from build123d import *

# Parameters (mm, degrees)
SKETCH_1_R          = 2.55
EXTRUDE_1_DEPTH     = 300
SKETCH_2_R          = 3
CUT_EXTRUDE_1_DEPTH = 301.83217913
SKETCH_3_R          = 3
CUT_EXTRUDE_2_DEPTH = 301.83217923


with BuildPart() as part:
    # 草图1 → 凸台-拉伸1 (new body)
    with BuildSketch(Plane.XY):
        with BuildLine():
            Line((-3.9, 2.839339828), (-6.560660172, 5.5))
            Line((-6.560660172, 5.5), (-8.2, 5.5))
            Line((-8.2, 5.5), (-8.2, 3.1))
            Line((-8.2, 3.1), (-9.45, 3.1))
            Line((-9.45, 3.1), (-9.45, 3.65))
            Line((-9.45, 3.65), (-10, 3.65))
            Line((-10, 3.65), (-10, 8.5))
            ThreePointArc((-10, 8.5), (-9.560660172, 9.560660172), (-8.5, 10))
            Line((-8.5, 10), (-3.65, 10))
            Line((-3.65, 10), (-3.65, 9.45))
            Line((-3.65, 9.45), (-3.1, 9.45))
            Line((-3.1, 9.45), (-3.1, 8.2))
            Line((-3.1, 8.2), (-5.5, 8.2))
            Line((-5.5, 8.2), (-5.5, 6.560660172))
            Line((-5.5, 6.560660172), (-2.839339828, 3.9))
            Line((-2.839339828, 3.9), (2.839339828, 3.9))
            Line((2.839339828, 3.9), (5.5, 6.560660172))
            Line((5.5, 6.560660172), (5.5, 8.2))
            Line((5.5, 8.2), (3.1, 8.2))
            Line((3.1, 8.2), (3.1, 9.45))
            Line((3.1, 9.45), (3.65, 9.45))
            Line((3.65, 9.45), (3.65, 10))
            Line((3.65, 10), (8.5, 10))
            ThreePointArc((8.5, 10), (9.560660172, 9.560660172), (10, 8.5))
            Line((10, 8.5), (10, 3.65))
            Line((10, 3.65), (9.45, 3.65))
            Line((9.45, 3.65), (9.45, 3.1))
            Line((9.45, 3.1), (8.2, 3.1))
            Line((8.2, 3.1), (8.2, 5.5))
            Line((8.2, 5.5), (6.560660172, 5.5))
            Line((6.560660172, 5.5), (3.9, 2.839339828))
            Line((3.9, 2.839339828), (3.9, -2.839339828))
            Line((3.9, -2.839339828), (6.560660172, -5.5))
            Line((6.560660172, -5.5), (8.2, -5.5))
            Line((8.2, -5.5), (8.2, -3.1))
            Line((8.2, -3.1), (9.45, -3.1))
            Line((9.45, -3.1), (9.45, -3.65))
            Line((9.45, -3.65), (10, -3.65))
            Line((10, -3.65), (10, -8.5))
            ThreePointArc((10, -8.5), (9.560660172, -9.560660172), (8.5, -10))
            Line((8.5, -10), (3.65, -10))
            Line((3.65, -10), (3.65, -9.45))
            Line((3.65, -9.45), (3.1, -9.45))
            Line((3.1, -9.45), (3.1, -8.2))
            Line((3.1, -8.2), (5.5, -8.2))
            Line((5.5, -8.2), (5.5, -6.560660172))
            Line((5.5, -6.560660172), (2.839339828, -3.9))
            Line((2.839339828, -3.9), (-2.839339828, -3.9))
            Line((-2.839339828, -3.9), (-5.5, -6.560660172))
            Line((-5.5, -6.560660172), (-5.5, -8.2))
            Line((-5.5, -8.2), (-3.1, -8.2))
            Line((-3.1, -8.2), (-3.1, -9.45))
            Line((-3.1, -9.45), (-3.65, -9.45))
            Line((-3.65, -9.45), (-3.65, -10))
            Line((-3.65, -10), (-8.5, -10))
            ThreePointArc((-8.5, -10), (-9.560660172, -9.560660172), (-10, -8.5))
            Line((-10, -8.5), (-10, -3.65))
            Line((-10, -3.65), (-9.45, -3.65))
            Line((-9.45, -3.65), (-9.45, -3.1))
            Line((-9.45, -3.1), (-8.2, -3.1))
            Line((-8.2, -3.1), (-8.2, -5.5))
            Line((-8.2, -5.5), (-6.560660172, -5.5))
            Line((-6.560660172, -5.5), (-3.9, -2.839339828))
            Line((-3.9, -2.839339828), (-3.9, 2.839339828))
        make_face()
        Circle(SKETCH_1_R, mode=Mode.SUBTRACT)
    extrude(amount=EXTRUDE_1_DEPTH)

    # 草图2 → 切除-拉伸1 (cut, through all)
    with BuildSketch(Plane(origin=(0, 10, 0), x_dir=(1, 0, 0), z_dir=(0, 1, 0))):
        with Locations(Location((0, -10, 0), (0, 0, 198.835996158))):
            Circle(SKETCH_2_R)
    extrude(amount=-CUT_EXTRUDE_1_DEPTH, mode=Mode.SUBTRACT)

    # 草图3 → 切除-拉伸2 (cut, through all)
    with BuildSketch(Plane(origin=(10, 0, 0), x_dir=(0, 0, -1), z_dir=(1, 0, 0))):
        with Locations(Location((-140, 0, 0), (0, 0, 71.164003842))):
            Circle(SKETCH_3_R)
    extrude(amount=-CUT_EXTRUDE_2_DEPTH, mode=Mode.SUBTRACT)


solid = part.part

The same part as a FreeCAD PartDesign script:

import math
import FreeCAD as App
import Part
import Sketcher
from FreeCAD import Vector

doc = App.newDocument("Part")
body = doc.addObject("PartDesign::Body", "Body")

sketch1 = body.newObject("Sketcher::SketchObject", "Sketch")
sketch1.AttachmentSupport = (doc.getObject("XY_Plane"), [""])
sketch1.MapMode = "FlatFace"
sketch1.addGeometry([
    Part.LineSegment(Vector(-6.6, 5.5, 0), Vector(-3.9, 2.8, 0)),
    Part.LineSegment(Vector(-3.9, 2.8, 0), Vector(-3.9, -2.8, 0)),
    Part.LineSegment(Vector(-3.9, -2.8, 0), Vector(-6.6, -5.5, 0)),
    Part.LineSegment(Vector(-6.6, -5.5, 0), Vector(-8.2, -5.5, 0)),
    Part.LineSegment(Vector(-8.2, -5.5, 0), Vector(-8.2, -3.1, 0)),
    Part.LineSegment(Vector(-8.2, -3.1, 0), Vector(-9.4, -3.1, 0)),
    Part.LineSegment(Vector(-9.4, -3.1, 0), Vector(-9.4, -3.6, 0)),
    Part.LineSegment(Vector(-9.4, -3.6, 0), Vector(-10, -3.6, 0)),
    Part.LineSegment(Vector(-10, -3.6, 0), Vector(-10, -8.5, 0)),
    Part.ArcOfCircle(Part.Circle(Vector(-8.5, -8.5, 0), Vector(0, 0, 1), 1.5), math.radians(180), math.radians(270)),
    Part.LineSegment(Vector(-8.5, -10, 0), Vector(-3.6, -10, 0)),
    Part.LineSegment(Vector(-3.6, -10, 0), Vector(-3.6, -9.4, 0)),
    Part.LineSegment(Vector(-3.6, -9.4, 0), Vector(-3.1, -9.4, 0)),
    Part.LineSegment(Vector(-3.1, -9.4, 0), Vector(-3.1, -8.2, 0)),
    Part.LineSegment(Vector(-3.1, -8.2, 0), Vector(-5.5, -8.2, 0)),
    Part.LineSegment(Vector(-5.5, -8.2, 0), Vector(-5.5, -6.6, 0)),
    Part.LineSegment(Vector(-5.5, -6.6, 0), Vector(-2.8, -3.9, 0)),
    Part.LineSegment(Vector(-2.8, -3.9, 0), Vector(2.8, -3.9, 0)),
    Part.LineSegment(Vector(2.8, -3.9, 0), Vector(5.5, -6.6, 0)),
    Part.LineSegment(Vector(5.5, -6.6, 0), Vector(5.5, -8.2, 0)),
    Part.LineSegment(Vector(5.5, -8.2, 0), Vector(3.1, -8.2, 0)),
    Part.LineSegment(Vector(3.1, -8.2, 0), Vector(3.1, -9.4, 0)),
    Part.LineSegment(Vector(3.1, -9.4, 0), Vector(3.6, -9.4, 0)),
    Part.LineSegment(Vector(3.6, -9.4, 0), Vector(3.6, -10, 0)),
    Part.LineSegment(Vector(3.6, -10, 0), Vector(8.5, -10, 0)),
    Part.ArcOfCircle(Part.Circle(Vector(8.5, -8.5, 0), Vector(0, 0, 1), 1.5), math.radians(-90), math.radians(0)),
    Part.LineSegment(Vector(10, -8.5, 0), Vector(10, -3.6, 0)),
    Part.LineSegment(Vector(10, -3.6, 0), Vector(9.4, -3.6, 0)),
    Part.LineSegment(Vector(9.4, -3.6, 0), Vector(9.4, -3.1, 0)),
    Part.LineSegment(Vector(9.4, -3.1, 0), Vector(8.2, -3.1, 0)),
    Part.LineSegment(Vector(8.2, -3.1, 0), Vector(8.2, -5.5, 0)),
    Part.LineSegment(Vector(8.2, -5.5, 0), Vector(6.6, -5.5, 0)),
    Part.LineSegment(Vector(6.6, -5.5, 0), Vector(3.9, -2.8, 0)),
    Part.LineSegment(Vector(3.9, -2.8, 0), Vector(3.9, 2.8, 0)),
    Part.LineSegment(Vector(3.9, 2.8, 0), Vector(6.6, 5.5, 0)),
    Part.LineSegment(Vector(6.6, 5.5, 0), Vector(8.2, 5.5, 0)),
    Part.LineSegment(Vector(8.2, 5.5, 0), Vector(8.2, 3.1, 0)),
    Part.LineSegment(Vector(8.2, 3.1, 0), Vector(9.4, 3.1, 0)),
    Part.LineSegment(Vector(9.4, 3.1, 0), Vector(9.4, 3.6, 0)),
    Part.LineSegment(Vector(9.4, 3.6, 0), Vector(10, 3.6, 0)),
    Part.LineSegment(Vector(10, 3.6, 0), Vector(10, 8.5, 0)),
    Part.ArcOfCircle(Part.Circle(Vector(8.5, 8.5, 0), Vector(0, 0, 1), 1.5), math.radians(0), math.radians(90)),
    Part.LineSegment(Vector(8.5, 10, 0), Vector(3.6, 10, 0)),
    Part.LineSegment(Vector(3.6, 10, 0), Vector(3.6, 9.4, 0)),
    Part.LineSegment(Vector(3.6, 9.4, 0), Vector(3.1, 9.4, 0)),
    Part.LineSegment(Vector(3.1, 9.4, 0), Vector(3.1, 8.2, 0)),
    Part.LineSegment(Vector(3.1, 8.2, 0), Vector(5.5, 8.2, 0)),
    Part.LineSegment(Vector(5.5, 8.2, 0), Vector(5.5, 6.6, 0)),
    Part.LineSegment(Vector(5.5, 6.6, 0), Vector(2.8, 3.9, 0)),
    Part.LineSegment(Vector(2.8, 3.9, 0), Vector(-2.8, 3.9, 0)),
    Part.LineSegment(Vector(-2.8, 3.9, 0), Vector(-5.5, 6.6, 0)),
    Part.LineSegment(Vector(-5.5, 6.6, 0), Vector(-5.5, 8.2, 0)),
    Part.LineSegment(Vector(-5.5, 8.2, 0), Vector(-3.1, 8.2, 0)),
    Part.LineSegment(Vector(-3.1, 8.2, 0), Vector(-3.1, 9.4, 0)),
    Part.LineSegment(Vector(-3.1, 9.4, 0), Vector(-3.6, 9.4, 0)),
    Part.LineSegment(Vector(-3.6, 9.4, 0), Vector(-3.6, 10, 0)),
    Part.LineSegment(Vector(-3.6, 10, 0), Vector(-8.5, 10, 0)),
    Part.ArcOfCircle(Part.Circle(Vector(-8.5, 8.5, 0), Vector(0, 0, 1), 1.5), math.radians(90), math.radians(180)),
    Part.LineSegment(Vector(-10, 8.5, 0), Vector(-10, 3.6, 0)),
    Part.LineSegment(Vector(-10, 3.6, 0), Vector(-9.4, 3.6, 0)),
    Part.LineSegment(Vector(-9.4, 3.6, 0), Vector(-9.4, 3.1, 0)),
    Part.LineSegment(Vector(-9.4, 3.1, 0), Vector(-8.2, 3.1, 0)),
    Part.LineSegment(Vector(-8.2, 3.1, 0), Vector(-8.2, 5.5, 0)),
    Part.LineSegment(Vector(-8.2, 5.5, 0), Vector(-6.6, 5.5, 0)),
    Part.Circle(Vector(0, 0, 0), Vector(0, 0, 1), 2.5),
], False)
sketch1.addConstraint([
    Sketcher.Constraint("Coincident", 0, 2, 1, 1),
    Sketcher.Constraint("Coincident", 1, 2, 2, 1),
    Sketcher.Constraint("Coincident", 2, 2, 3, 1),
    Sketcher.Constraint("Coincident", 3, 2, 4, 1),
    Sketcher.Constraint("Coincident", 4, 2, 5, 1),
    Sketcher.Constraint("Coincident", 5, 2, 6, 1),
    Sketcher.Constraint("Coincident", 6, 2, 7, 1),
    Sketcher.Constraint("Coincident", 7, 2, 8, 1),
    Sketcher.Constraint("Tangent", 8, 2, 9, 1),
    Sketcher.Constraint("Tangent", 9, 2, 10, 1),
    Sketcher.Constraint("Coincident", 10, 2, 11, 1),
    Sketcher.Constraint("Coincident", 11, 2, 12, 1),
    Sketcher.Constraint("Coincident", 12, 2, 13, 1),
    Sketcher.Constraint("Coincident", 13, 2, 14, 1),
    Sketcher.Constraint("Coincident", 14, 2, 15, 1),
    Sketcher.Constraint("Coincident", 15, 2, 16, 1),
    Sketcher.Constraint("Coincident", 16, 2, 17, 1),
    Sketcher.Constraint("Coincident", 17, 2, 18, 1),
    Sketcher.Constraint("Coincident", 18, 2, 19, 1),
    Sketcher.Constraint("Coincident", 19, 2, 20, 1),
    Sketcher.Constraint("Coincident", 20, 2, 21, 1),
    Sketcher.Constraint("Coincident", 21, 2, 22, 1),
    Sketcher.Constraint("Coincident", 22, 2, 23, 1),
    Sketcher.Constraint("Coincident", 23, 2, 24, 1),
    Sketcher.Constraint("Tangent", 24, 2, 25, 1),
    Sketcher.Constraint("Tangent", 25, 2, 26, 1),
    Sketcher.Constraint("Coincident", 26, 2, 27, 1),
    Sketcher.Constraint("Coincident", 27, 2, 28, 1),
    Sketcher.Constraint("Coincident", 28, 2, 29, 1),
    Sketcher.Constraint("Coincident", 29, 2, 30, 1),
    Sketcher.Constraint("Coincident", 30, 2, 31, 1),
    Sketcher.Constraint("Coincident", 31, 2, 32, 1),
    Sketcher.Constraint("Coincident", 32, 2, 33, 1),
    Sketcher.Constraint("Coincident", 33, 2, 34, 1),
    Sketcher.Constraint("Coincident", 34, 2, 35, 1),
    Sketcher.Constraint("Coincident", 35, 2, 36, 1),
    Sketcher.Constraint("Coincident", 36, 2, 37, 1),
    Sketcher.Constraint("Coincident", 37, 2, 38, 1),
    Sketcher.Constraint("Coincident", 38, 2, 39, 1),
    Sketcher.Constraint("Coincident", 39, 2, 40, 1),
    Sketcher.Constraint("Tangent", 40, 2, 41, 1),
    Sketcher.Constraint("Tangent", 41, 2, 42, 1),
    Sketcher.Constraint("Coincident", 42, 2, 43, 1),
    Sketcher.Constraint("Coincident", 43, 2, 44, 1),
    Sketcher.Constraint("Coincident", 44, 2, 45, 1),
    Sketcher.Constraint("Coincident", 45, 2, 46, 1),
    Sketcher.Constraint("Coincident", 46, 2, 47, 1),
    Sketcher.Constraint("Coincident", 47, 2, 48, 1),
    Sketcher.Constraint("Coincident", 48, 2, 49, 1),
    Sketcher.Constraint("Coincident", 49, 2, 50, 1),
    Sketcher.Constraint("Coincident", 50, 2, 51, 1),
    Sketcher.Constraint("Coincident", 51, 2, 52, 1),
    Sketcher.Constraint("Coincident", 52, 2, 53, 1),
    Sketcher.Constraint("Coincident", 53, 2, 54, 1),
    Sketcher.Constraint("Coincident", 54, 2, 55, 1),
    Sketcher.Constraint("Coincident", 55, 2, 56, 1),
    Sketcher.Constraint("Tangent", 56, 2, 57, 1),
    Sketcher.Constraint("Tangent", 57, 2, 58, 1),
    Sketcher.Constraint("Coincident", 58, 2, 59, 1),
    Sketcher.Constraint("Coincident", 59, 2, 60, 1),
    Sketcher.Constraint("Coincident", 60, 2, 61, 1),
    Sketcher.Constraint("Coincident", 61, 2, 62, 1),
    Sketcher.Constraint("Coincident", 62, 2, 63, 1),
    Sketcher.Constraint("Coincident", 63, 2, 0, 1),
    Sketcher.Constraint("Vertical", 1),
    Sketcher.Constraint("Horizontal", 3),
    Sketcher.Constraint("Vertical", 4),
    Sketcher.Constraint("Horizontal", 5),
    Sketcher.Constraint("Vertical", 6),
    Sketcher.Constraint("Horizontal", 7),
    Sketcher.Constraint("Vertical", 8),
    Sketcher.Constraint("Horizontal", 10),
    Sketcher.Constraint("Vertical", 11),
    Sketcher.Constraint("Horizontal", 12),
    Sketcher.Constraint("Vertical", 13),
    Sketcher.Constraint("Horizontal", 14),
    Sketcher.Constraint("Vertical", 15),
    Sketcher.Constraint("Horizontal", 17),
    Sketcher.Constraint("Vertical", 19),
    Sketcher.Constraint("Horizontal", 20),
    Sketcher.Constraint("Vertical", 21),
    Sketcher.Constraint("Horizontal", 22),
    Sketcher.Constraint("Vertical", 23),
    Sketcher.Constraint("Horizontal", 24),
    Sketcher.Constraint("Vertical", 26),
    Sketcher.Constraint("Horizontal", 27),
    Sketcher.Constraint("Vertical", 28),
    Sketcher.Constraint("Horizontal", 29),
    Sketcher.Constraint("Vertical", 30),
    Sketcher.Constraint("Horizontal", 31),
    Sketcher.Constraint("Vertical", 33),
    Sketcher.Constraint("Horizontal", 35),
    Sketcher.Constraint("Vertical", 36),
    Sketcher.Constraint("Horizontal", 37),
    Sketcher.Constraint("Vertical", 38),
    Sketcher.Constraint("Horizontal", 39),
    Sketcher.Constraint("Vertical", 40),
    Sketcher.Constraint("Horizontal", 42),
    Sketcher.Constraint("Vertical", 43),
    Sketcher.Constraint("Horizontal", 44),
    Sketcher.Constraint("Vertical", 45),
    Sketcher.Constraint("Horizontal", 46),
    Sketcher.Constraint("Vertical", 47),
    Sketcher.Constraint("Horizontal", 49),
    Sketcher.Constraint("Vertical", 51),
    Sketcher.Constraint("Horizontal", 52),
    Sketcher.Constraint("Vertical", 53),
    Sketcher.Constraint("Horizontal", 54),
    Sketcher.Constraint("Vertical", 55),
    Sketcher.Constraint("Horizontal", 56),
    Sketcher.Constraint("Vertical", 58),
    Sketcher.Constraint("Horizontal", 59),
    Sketcher.Constraint("Vertical", 60),
    Sketcher.Constraint("Horizontal", 61),
    Sketcher.Constraint("Vertical", 62),
    Sketcher.Constraint("Horizontal", 63),
    Sketcher.Constraint("Coincident", 64, 3, -1, 1),
    Sketcher.Constraint("Equal", 9, 25),
    Sketcher.Constraint("Equal", 25, 41),
    Sketcher.Constraint("Equal", 41, 57),
    Sketcher.Constraint("Symmetric", 9, 3, 41, 3, -1, 1),
    Sketcher.Constraint("Symmetric", 25, 3, 57, 3, -1, 1),
    Sketcher.Constraint("Symmetric", 0, 2, 32, 2, -1, 1),
    Sketcher.Constraint("Symmetric", 2, 2, 34, 2, -1, 1),
    Sketcher.Constraint("Symmetric", 4, 2, 36, 2, -1, 1),
    Sketcher.Constraint("Symmetric", 6, 2, 38, 2, -1, 1),
    Sketcher.Constraint("Symmetric", 11, 2, 43, 2, -1, 1),
    Sketcher.Constraint("Symmetric", 13, 2, 45, 2, -1, 1),
    Sketcher.Constraint("Symmetric", 15, 2, 47, 2, -1, 1),
    Sketcher.Constraint("Symmetric", 16, 2, 48, 2, -1, 1),
    Sketcher.Constraint("Symmetric", 18, 2, 50, 2, -1, 1),
    Sketcher.Constraint("Symmetric", 20, 2, 52, 2, -1, 1),
    Sketcher.Constraint("Symmetric", 22, 2, 54, 2, -1, 1),
    Sketcher.Constraint("Symmetric", 27, 2, 59, 2, -1, 1),
    Sketcher.Constraint("Symmetric", 29, 2, 61, 2, -1, 1),
    Sketcher.Constraint("Symmetric", 31, 2, 63, 2, -1, 1),
    Sketcher.Constraint("Symmetric", 9, 3, 25, 3, -2),
    Sketcher.Constraint("Symmetric", 15, 2, 18, 2, -2),
    Sketcher.Constraint("Symmetric", 13, 2, 20, 2, -2),
    Sketcher.Constraint("Symmetric", 11, 2, 22, 2, -2),
    Sketcher.Constraint("Symmetric", 6, 2, 27, 2, -2),
    Sketcher.Constraint("Symmetric", 4, 2, 29, 2, -2),
    Sketcher.Constraint("Symmetric", 2, 2, 31, 2, -2),
    Sketcher.Constraint("Perpendicular", 0, 2),
    Sketcher.Constraint("Parallel", 2, 16),
    Sketcher.Constraint("Perpendicular", 16, 18),
    Sketcher.Constraint("Perpendicular", 32, 34),
    Sketcher.Constraint("Perpendicular", 48, 50),
    Sketcher.Constraint("Horizontal", 1, 2, 32, 2),
    Sketcher.Constraint("Equal", 7, 12),
    Sketcher.Constraint("Equal", 49, 1),
    Sketcher.Constraint("Equal", 52, 4),
    Sketcher.Constraint("Equal", 59, 6),
    Sketcher.Constraint("Equal", 56, 8),
    Sketcher.Constraint("Equal", 6, 11),
    Sketcher.Constraint("Equal", 61, 13),
    Sketcher.Constraint("Equal", 63, 15),
    Sketcher.Constraint("Equal", 2, 16),
    Sketcher.Constraint("Diameter", 64, 5.1),
    Sketcher.Constraint("Radius", 9, 1.5),
    Sketcher.Constraint("DistanceX", 14, 2, 14, 1, 2.4),
    Sketcher.Constraint("DistanceX", 7, 2, -1, 1, 10.0),
    Sketcher.Constraint("DistanceX", 5, 2, 5, 1, 1.25),
    Sketcher.Constraint("DistanceX", 7, 2, 7, 1, 0.55),
    Sketcher.Constraint("DistanceX", 10, 1, 10, 2, 4.85),
    Sketcher.Constraint("DistanceX", 0, 2, -1, 1, 3.9),
    Sketcher.Constraint("DistanceX", 3, 2, 3, 1, 1.63934),
])
pad1 = body.newObject("PartDesign::Pad", "Pad")
pad1.Profile = sketch1
pad1.Length = 300

sketch2 = body.newObject("Sketcher::SketchObject", "Sketch001")
sketch2.AttachmentSupport = (doc.getObject("XZ_Plane"), [""])
sketch2.MapMode = "FlatFace"
sketch2.AttachmentOffset = App.Placement(Vector(0, 0, -10), App.Rotation())
sketch2.addGeometry(Part.Circle(Vector(0, 10, 0), Vector(0, 0, 1), 3), False)
sketch2.addConstraint([
    Sketcher.Constraint("PointOnObject", 0, 3, -2),
    Sketcher.Constraint("Diameter", 0, 6.0),
    Sketcher.Constraint("DistanceY", -1, 1, 0, 3, 10.0),
])
pocket1 = body.newObject("PartDesign::Pocket", "Pocket")
pocket1.Profile = sketch2
pocket1.Type = "ThroughAll"
pocket1.Reversed = True

sketch3 = body.newObject("Sketcher::SketchObject", "Sketch002")
sketch3.AttachmentSupport = (doc.getObject("YZ_Plane"), [""])
sketch3.MapMode = "FlatFace"
sketch3.AttachmentOffset = App.Placement(Vector(0, 0, 10), App.Rotation())
sketch3.addGeometry(Part.Circle(Vector(0, 140, 0), Vector(0, 0, 1), 3), False)
sketch3.addConstraint([
    Sketcher.Constraint("PointOnObject", 0, 3, -2),
    Sketcher.Constraint("Diameter", 0, 6.0),
    Sketcher.Constraint("DistanceY", -1, 1, 0, 3, 140.0),
])
pocket2 = body.newObject("PartDesign::Pocket", "Pocket001")
pocket2.Profile = sketch3
pocket2.Type = "ThroughAll"

doc.recompute()
